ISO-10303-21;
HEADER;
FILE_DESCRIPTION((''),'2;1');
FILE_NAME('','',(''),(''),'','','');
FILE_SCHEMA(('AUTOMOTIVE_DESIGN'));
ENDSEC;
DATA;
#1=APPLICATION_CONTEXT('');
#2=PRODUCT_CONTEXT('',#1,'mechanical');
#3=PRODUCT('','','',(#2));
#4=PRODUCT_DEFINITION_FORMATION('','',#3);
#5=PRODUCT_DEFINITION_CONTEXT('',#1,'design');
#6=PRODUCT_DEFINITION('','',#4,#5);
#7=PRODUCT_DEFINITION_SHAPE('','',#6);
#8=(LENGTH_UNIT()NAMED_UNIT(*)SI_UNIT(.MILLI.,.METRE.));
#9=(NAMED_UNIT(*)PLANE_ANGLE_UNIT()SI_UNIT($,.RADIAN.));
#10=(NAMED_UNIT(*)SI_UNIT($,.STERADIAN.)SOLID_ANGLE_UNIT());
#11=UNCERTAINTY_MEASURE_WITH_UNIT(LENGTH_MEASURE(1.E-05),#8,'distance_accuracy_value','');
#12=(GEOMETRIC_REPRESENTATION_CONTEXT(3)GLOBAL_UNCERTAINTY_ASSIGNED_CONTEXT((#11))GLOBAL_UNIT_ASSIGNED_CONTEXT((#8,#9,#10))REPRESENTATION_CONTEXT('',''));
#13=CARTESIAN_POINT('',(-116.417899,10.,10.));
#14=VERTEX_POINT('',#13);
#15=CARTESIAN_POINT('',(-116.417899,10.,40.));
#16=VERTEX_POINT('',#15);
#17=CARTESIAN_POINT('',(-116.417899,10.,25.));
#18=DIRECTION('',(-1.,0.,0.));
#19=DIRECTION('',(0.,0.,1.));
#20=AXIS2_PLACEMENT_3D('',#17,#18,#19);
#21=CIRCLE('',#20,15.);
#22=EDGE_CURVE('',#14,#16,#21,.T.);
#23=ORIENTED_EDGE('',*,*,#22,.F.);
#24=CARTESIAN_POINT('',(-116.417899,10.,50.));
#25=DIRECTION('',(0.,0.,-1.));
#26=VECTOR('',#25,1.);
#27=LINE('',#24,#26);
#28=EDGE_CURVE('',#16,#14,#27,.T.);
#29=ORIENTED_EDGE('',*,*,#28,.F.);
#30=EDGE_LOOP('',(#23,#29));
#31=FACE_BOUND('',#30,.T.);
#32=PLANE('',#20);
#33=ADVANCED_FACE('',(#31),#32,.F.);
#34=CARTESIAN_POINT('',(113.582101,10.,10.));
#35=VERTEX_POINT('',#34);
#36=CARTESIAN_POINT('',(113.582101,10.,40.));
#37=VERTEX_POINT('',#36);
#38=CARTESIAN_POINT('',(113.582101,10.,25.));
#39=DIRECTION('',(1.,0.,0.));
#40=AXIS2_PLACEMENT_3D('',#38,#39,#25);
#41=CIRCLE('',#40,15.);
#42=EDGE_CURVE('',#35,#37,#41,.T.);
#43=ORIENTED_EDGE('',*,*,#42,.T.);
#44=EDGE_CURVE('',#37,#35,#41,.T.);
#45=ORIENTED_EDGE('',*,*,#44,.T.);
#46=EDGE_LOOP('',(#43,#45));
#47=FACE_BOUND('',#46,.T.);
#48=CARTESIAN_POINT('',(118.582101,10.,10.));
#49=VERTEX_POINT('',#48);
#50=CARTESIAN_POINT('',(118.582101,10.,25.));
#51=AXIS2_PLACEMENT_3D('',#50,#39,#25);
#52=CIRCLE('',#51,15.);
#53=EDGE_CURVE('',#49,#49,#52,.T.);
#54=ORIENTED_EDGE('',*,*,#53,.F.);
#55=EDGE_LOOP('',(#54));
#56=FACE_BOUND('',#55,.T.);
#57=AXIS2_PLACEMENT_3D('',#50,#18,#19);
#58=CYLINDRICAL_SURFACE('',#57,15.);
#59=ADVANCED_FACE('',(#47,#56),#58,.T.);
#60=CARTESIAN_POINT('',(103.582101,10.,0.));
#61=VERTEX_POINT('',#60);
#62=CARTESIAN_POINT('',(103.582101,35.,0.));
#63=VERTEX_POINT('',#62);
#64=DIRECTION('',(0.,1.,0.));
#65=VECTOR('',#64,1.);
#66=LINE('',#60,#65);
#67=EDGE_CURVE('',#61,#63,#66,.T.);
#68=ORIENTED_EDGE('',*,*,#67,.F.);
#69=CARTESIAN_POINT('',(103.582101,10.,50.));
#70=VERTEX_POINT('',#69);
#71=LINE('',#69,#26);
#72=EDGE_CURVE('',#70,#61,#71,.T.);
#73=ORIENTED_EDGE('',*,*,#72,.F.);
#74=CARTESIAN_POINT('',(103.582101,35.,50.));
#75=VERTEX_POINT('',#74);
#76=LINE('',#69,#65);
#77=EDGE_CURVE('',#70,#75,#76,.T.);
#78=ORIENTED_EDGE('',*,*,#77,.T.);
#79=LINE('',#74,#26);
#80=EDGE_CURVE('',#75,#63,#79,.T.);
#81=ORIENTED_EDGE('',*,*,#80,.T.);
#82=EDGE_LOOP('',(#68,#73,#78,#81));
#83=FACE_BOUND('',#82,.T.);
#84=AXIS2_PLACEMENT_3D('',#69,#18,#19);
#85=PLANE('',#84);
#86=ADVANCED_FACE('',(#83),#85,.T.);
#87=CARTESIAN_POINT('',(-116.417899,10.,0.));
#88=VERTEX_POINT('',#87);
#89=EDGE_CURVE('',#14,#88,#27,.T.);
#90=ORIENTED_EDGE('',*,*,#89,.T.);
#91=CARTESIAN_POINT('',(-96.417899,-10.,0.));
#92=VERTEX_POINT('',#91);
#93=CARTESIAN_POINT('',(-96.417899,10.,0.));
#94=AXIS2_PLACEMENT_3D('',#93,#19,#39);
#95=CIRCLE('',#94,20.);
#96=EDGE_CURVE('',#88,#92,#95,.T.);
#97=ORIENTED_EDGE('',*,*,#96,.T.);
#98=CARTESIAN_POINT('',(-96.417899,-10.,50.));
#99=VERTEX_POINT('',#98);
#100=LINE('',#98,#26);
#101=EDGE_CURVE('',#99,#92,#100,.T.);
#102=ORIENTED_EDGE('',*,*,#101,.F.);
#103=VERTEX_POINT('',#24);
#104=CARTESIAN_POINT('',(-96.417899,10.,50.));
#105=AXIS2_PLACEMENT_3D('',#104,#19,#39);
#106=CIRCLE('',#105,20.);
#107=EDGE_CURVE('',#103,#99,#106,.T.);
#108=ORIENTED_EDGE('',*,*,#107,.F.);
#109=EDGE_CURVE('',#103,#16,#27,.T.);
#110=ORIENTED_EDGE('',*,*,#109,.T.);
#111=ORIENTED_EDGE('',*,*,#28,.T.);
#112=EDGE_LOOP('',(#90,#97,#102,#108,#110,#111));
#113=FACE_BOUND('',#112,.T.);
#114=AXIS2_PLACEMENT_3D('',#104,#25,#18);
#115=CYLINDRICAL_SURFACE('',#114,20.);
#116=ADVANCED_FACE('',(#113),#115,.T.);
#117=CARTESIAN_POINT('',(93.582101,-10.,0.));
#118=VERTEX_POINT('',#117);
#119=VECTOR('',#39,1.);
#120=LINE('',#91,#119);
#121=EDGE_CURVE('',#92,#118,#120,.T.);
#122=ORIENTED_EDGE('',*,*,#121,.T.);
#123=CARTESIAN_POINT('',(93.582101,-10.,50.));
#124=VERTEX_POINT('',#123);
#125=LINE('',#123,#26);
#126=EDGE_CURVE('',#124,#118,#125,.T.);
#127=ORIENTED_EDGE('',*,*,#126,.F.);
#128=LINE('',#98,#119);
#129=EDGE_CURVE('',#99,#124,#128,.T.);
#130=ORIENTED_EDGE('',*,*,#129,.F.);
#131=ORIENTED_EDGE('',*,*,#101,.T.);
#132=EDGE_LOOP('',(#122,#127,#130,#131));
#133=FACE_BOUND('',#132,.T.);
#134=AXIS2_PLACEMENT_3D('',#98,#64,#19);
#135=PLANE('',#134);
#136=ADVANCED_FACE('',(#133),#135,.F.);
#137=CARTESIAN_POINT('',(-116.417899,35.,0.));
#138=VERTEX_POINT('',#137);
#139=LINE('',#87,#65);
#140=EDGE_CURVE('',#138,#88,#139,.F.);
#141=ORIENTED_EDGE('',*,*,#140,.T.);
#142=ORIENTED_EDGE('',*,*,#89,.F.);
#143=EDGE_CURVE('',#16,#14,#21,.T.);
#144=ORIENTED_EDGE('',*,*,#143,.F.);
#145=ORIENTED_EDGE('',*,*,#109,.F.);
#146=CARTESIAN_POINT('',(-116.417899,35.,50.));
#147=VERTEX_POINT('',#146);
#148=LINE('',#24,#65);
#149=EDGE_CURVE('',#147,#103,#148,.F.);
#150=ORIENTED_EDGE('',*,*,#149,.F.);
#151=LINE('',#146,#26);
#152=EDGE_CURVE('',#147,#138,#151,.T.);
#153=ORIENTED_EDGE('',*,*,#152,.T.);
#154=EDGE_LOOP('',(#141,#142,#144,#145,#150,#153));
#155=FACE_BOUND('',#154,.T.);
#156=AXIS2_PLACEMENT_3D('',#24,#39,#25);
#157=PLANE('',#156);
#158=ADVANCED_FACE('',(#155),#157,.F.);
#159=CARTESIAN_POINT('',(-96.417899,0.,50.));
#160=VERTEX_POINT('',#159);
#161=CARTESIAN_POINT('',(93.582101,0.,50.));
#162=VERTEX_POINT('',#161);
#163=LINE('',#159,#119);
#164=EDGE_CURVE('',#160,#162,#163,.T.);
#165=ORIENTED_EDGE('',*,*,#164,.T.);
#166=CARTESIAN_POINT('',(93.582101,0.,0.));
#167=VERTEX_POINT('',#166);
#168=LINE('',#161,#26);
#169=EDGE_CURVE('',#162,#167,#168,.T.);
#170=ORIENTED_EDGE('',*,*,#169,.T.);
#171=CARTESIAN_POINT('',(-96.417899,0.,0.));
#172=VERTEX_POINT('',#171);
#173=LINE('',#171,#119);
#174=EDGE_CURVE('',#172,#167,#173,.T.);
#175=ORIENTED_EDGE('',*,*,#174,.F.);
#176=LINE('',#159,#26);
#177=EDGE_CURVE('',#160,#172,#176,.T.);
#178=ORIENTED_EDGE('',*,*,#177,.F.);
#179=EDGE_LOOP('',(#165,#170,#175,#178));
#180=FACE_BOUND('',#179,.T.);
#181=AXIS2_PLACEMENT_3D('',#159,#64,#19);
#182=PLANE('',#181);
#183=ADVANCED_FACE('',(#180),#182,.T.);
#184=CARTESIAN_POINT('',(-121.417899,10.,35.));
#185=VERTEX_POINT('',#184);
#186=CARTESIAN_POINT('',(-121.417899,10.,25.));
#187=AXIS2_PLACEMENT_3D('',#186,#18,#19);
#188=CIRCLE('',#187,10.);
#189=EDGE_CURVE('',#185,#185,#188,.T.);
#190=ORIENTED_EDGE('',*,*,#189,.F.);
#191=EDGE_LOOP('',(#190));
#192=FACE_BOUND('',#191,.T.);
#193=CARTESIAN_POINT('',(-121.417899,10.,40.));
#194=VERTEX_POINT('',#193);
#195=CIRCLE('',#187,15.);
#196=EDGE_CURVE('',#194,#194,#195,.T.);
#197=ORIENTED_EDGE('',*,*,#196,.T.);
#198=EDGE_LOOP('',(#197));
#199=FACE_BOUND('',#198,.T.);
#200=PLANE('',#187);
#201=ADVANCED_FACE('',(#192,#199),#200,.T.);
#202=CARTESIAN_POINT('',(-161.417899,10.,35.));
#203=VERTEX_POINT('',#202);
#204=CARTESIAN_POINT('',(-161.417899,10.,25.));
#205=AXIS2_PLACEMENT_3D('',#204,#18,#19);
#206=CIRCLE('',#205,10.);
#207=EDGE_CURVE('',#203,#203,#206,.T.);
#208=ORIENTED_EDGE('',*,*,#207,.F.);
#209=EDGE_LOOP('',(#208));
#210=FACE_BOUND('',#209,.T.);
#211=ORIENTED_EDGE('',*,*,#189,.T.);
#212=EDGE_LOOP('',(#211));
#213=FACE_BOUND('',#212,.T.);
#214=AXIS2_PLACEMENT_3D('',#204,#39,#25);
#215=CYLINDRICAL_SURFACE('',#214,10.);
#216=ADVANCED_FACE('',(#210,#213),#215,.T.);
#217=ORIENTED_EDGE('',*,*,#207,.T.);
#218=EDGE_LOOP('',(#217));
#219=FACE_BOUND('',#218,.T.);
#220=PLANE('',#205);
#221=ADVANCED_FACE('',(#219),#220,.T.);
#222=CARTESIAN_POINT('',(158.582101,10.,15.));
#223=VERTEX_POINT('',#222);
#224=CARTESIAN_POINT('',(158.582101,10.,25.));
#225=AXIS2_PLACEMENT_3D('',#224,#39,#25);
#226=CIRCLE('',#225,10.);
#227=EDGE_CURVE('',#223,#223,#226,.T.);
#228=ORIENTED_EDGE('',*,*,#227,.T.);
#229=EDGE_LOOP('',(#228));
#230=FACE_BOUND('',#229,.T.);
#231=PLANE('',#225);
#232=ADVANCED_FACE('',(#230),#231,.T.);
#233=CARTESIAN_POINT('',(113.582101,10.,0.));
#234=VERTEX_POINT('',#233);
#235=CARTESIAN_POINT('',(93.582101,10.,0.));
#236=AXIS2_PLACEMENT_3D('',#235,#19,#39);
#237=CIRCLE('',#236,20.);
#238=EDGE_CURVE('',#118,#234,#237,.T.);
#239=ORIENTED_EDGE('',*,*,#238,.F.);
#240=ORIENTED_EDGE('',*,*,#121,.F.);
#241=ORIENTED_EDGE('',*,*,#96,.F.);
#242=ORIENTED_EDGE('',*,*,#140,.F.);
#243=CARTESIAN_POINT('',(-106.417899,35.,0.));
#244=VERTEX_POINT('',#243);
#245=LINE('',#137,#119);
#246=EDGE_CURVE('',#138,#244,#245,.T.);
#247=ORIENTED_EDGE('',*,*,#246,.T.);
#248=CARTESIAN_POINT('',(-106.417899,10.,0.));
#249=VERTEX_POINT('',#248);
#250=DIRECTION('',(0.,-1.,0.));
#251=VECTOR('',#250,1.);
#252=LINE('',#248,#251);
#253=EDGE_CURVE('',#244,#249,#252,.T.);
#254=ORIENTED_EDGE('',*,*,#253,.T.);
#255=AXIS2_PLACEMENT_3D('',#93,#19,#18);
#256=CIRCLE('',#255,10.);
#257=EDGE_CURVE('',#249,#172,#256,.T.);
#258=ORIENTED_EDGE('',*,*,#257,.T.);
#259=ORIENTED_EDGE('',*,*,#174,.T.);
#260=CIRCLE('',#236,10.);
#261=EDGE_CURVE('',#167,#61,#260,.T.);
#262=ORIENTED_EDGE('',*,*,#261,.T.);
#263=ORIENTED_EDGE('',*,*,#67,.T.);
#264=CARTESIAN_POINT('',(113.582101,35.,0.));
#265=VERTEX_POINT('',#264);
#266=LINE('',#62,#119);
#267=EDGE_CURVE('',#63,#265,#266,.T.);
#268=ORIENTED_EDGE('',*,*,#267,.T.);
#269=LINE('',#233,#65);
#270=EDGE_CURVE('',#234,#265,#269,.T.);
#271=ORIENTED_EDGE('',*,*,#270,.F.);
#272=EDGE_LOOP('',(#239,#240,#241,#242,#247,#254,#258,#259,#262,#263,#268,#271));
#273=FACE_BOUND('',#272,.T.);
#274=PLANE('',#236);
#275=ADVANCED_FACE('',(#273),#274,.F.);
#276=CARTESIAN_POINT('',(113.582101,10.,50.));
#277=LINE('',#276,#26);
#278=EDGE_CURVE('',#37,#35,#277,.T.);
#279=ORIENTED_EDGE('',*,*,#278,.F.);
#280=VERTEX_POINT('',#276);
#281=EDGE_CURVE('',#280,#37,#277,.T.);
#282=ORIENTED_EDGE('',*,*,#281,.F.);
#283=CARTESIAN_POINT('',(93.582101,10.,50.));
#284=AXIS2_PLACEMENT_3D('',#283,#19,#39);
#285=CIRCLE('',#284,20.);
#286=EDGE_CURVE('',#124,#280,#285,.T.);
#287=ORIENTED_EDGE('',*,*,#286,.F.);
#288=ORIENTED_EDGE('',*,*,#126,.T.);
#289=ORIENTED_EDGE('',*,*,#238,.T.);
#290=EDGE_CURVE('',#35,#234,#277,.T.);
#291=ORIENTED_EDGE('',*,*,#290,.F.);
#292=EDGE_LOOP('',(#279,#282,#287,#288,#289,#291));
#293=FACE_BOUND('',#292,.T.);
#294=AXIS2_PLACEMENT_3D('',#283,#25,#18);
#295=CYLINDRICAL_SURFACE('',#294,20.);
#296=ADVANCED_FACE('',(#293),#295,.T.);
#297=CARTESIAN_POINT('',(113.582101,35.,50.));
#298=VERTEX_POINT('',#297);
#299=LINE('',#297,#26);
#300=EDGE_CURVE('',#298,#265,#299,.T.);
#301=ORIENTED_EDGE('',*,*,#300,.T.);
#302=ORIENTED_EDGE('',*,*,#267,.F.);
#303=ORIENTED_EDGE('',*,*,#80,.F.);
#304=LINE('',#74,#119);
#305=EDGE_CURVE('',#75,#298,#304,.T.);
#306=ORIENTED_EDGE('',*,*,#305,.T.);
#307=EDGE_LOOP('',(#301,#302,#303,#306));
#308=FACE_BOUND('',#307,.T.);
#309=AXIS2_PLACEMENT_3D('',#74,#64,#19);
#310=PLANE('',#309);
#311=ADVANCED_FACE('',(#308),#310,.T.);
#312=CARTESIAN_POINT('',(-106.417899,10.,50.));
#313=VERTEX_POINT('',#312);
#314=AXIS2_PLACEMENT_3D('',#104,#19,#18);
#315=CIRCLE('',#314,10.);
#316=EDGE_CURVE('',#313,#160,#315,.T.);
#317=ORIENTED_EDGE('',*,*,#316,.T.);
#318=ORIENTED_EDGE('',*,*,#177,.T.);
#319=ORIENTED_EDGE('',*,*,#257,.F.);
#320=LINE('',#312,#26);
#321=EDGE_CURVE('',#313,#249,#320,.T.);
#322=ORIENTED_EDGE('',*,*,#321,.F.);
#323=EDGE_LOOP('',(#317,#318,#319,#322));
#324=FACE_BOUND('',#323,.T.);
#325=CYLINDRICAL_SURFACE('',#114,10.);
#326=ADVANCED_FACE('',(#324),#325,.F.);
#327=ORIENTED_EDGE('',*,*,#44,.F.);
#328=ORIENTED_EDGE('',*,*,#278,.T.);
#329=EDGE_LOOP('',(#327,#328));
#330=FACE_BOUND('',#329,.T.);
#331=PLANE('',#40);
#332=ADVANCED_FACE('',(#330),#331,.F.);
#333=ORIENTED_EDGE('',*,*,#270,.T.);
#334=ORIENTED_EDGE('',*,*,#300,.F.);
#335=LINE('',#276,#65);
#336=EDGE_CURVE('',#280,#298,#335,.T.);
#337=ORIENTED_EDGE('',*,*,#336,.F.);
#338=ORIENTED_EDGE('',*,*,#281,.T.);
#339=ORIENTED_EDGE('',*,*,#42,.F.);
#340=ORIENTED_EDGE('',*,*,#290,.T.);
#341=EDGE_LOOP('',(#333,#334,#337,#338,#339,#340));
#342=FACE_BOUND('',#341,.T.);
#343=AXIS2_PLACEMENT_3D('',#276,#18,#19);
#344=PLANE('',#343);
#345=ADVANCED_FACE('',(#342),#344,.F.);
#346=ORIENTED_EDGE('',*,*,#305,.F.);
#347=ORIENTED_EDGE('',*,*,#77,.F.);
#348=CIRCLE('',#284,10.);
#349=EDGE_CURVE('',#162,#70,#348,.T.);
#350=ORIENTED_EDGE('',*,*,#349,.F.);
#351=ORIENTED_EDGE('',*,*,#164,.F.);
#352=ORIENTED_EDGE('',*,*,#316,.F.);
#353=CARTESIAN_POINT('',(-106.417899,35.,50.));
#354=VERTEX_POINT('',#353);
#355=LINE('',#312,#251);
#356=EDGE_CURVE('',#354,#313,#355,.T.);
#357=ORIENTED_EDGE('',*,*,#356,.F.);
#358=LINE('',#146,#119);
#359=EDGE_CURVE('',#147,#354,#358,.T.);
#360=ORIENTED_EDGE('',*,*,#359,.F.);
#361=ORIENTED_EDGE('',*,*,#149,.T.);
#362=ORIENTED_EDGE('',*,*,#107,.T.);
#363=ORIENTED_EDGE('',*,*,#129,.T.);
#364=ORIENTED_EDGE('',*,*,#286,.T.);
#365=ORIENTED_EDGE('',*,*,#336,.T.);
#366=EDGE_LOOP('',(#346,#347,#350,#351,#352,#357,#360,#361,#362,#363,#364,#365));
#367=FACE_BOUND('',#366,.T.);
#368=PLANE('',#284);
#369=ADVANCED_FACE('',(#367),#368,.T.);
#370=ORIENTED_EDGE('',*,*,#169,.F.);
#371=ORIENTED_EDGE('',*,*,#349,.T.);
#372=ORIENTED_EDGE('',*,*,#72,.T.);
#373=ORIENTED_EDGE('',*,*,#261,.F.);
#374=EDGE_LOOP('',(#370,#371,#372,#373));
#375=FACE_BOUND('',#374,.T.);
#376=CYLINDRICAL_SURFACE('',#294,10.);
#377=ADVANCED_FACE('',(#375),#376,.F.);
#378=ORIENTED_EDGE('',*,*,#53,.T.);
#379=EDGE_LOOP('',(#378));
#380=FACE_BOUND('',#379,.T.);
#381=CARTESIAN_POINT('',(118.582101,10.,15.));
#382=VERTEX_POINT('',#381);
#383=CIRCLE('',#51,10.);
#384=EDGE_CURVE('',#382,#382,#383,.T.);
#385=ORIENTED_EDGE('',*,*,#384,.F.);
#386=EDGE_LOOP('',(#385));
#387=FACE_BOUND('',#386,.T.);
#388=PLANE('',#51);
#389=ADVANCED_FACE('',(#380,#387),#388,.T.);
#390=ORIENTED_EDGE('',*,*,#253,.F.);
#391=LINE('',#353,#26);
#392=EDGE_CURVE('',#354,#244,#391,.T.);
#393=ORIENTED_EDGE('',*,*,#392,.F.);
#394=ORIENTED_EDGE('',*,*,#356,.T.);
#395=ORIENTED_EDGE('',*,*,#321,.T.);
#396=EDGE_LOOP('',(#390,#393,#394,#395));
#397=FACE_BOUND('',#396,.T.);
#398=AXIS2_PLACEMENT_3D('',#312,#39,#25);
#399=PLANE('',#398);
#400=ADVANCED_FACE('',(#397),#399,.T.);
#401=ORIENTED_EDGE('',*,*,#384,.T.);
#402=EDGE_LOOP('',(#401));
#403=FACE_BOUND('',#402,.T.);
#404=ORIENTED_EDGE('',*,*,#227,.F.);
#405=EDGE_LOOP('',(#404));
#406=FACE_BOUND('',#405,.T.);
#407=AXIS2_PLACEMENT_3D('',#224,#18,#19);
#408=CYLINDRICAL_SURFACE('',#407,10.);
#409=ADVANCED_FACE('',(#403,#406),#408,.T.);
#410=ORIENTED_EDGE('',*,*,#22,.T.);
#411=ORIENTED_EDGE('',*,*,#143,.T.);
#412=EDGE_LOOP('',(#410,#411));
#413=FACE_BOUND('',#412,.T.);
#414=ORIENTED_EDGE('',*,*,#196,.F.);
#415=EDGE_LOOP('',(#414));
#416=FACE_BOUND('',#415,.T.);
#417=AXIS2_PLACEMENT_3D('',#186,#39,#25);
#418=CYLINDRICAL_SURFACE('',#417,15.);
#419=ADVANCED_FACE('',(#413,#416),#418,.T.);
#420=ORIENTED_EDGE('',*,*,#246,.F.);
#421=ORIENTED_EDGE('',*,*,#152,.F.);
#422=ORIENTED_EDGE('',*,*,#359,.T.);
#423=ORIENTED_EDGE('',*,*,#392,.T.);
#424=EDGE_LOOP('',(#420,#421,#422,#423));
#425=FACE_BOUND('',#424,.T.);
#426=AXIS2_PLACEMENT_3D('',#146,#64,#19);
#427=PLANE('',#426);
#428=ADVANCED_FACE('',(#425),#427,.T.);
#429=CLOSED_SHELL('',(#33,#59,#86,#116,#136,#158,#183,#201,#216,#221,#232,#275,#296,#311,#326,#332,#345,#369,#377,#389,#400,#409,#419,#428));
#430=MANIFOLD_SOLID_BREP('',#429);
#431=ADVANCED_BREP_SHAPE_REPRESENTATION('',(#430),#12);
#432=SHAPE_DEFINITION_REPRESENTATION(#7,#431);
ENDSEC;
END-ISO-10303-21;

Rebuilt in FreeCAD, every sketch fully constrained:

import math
import FreeCAD as App
import Part
import Sketcher
from FreeCAD import Vector
Q = App.Units.Quantity

doc = App.newDocument("Part")
body = doc.addObject("PartDesign::Body", "Body")

sketch1 = doc.addObject("Sketcher::SketchObject", "Sketch")
body.addObject(sketch1)
sketch1.AttachmentSupport = (doc.XY_Plane, [""])
sketch1.MapMode = "FlatFace"
sketch1.addGeometry(Part.LineSegment(Vector(-106, 10, 0), Vector(-106, 35, 0)), False)
sketch1.addGeometry(Part.LineSegment(Vector(-106, 35, 0), Vector(-116, 35, 0)), False)
sketch1.addGeometry(Part.LineSegment(Vector(-116, 35, 0), Vector(-116, 10, 0)), False)
sketch1.addGeometry(Part.ArcOfCircle(Part.Circle(Vector(-96, 10, 0), Vector(0, 0, 1), 20), math.radians(180), math.radians(270)), False)
sketch1.addGeometry(Part.LineSegment(Vector(-96, -10, 0), Vector(94, -10, 0)), False)
sketch1.addGeometry(Part.ArcOfCircle(Part.Circle(Vector(94, 10, 0), Vector(0, 0, 1), 20), math.radians(-90), math.radians(0)), False)
sketch1.addGeometry(Part.LineSegment(Vector(114, 10, 0), Vector(114, 35, 0)), False)
sketch1.addGeometry(Part.LineSegment(Vector(114, 35, 0), Vector(104, 35, 0)), False)
sketch1.addGeometry(Part.LineSegment(Vector(104, 35, 0), Vector(104, 10, 0)), False)
sketch1.addGeometry(Part.ArcOfCircle(Part.Circle(Vector(94, 10, 0), Vector(0, 0, 1), 10), math.radians(-90), math.radians(0)), False)
sketch1.addGeometry(Part.LineSegment(Vector(94, 0, 0), Vector(-96, 0, 0)), False)
sketch1.addGeometry(Part.ArcOfCircle(Part.Circle(Vector(-96, 10, 0), Vector(0, 0, 1), 10), math.radians(180), math.radians(270)), False)
sketch1.addConstraint(Sketcher.Constraint("Coincident", 0, 2, 1, 1))
sketch1.addConstraint(Sketcher.Constraint("Coincident", 1, 2, 2, 1))
sketch1.addConstraint(Sketcher.Constraint("Tangent", 2, 2, 3, 1))
sketch1.addConstraint(Sketcher.Constraint("Tangent", 3, 2, 4, 1))
sketch1.addConstraint(Sketcher.Constraint("Tangent", 4, 2, 5, 1))
sketch1.addConstraint(Sketcher.Constraint("Tangent", 5, 2, 6, 1))
sketch1.addConstraint(Sketcher.Constraint("Coincident", 6, 2, 7, 1))
sketch1.addConstraint(Sketcher.Constraint("Coincident", 7, 2, 8, 1))
sketch1.addConstraint(Sketcher.Constraint("Tangent", 8, 2, 9, 2))
sketch1.addConstraint(Sketcher.Constraint("Tangent", 9, 1, 10, 1))
sketch1.addConstraint(Sketcher.Constraint("Tangent", 10, 2, 11, 2))
sketch1.addConstraint(Sketcher.Constraint("Tangent", 11, 1, 0, 1))
sketch1.addConstraint(Sketcher.Constraint("Vertical", 0))
sketch1.addConstraint(Sketcher.Constraint("Horizontal", 1))
sketch1.addConstraint(Sketcher.Constraint("Vertical", 2))
sketch1.addConstraint(Sketcher.Constraint("Horizontal", 4))
sketch1.addConstraint(Sketcher.Constraint("Vertical", 6))
sketch1.addConstraint(Sketcher.Constraint("Horizontal", 7))
sketch1.addConstraint(Sketcher.Constraint("Vertical", 8))
sketch1.addConstraint(Sketcher.Constraint("Horizontal", 10))
sketch1.addConstraint(Sketcher.Constraint("Coincident", 9, 3, 5, 3))
sketch1.addConstraint(Sketcher.Constraint("Coincident", 11, 3, 3, 3))
sketch1.addConstraint(Sketcher.Constraint("Equal", 3, 5))
sketch1.addConstraint(Sketcher.Constraint("PointOnObject", 9, 1, -1))
sketch1.addConstraint(Sketcher.Constraint("Horizontal", 1, 2, 6, 2))
sketch1.addConstraint(Sketcher.Constraint("Radius", 3, Q("20 mm")))
sketch1.addConstraint(Sketcher.Constraint("Radius", 9, Q("10 mm")))
sketch1.addConstraint(Sketcher.Constraint("DistanceX", 4, 1, 4, 2, Q("190 mm")))
sketch1.addConstraint(Sketcher.Constraint("DistanceY", 0, 1, 0, 2, Q("25 mm")))
sketch1.addConstraint(Sketcher.Constraint("DistanceX", 3, 3, -1, 1, Q("96.417899 mm")))
pad1 = doc.addObject("PartDesign::Pad", "Pad")
body.addObject(pad1)
pad1.Profile = sketch1
pad1.Length = 50

sketch2 = doc.addObject("Sketcher::SketchObject", "Sketch001")
body.addObject(sketch2)
sketch2.AttachmentSupport = (doc.YZ_Plane, [""])
sketch2.MapMode = "FlatFace"
sketch2.AttachmentOffset = App.Placement(Vector(0, 0, 113.582101), App.Rotation())
sketch2.addGeometry(Part.Circle(Vector(10, 25, 0), Vector(0, 0, 1), 10), False)
sketch2.addConstraint(Sketcher.Constraint("Diameter", 0, Q("20 mm")))
sketch2.addConstraint(Sketcher.Constraint("DistanceX", -1, 1, 0, 3, Q("10 mm")))
sketch2.addConstraint(Sketcher.Constraint("DistanceY", -1, 1, 0, 3, Q("25 mm")))
pad2 = doc.addObject("PartDesign::Pad", "Pad001")
body.addObject(pad2)
pad2.Profile = sketch2
pad2.Length = 45

sketch3 = doc.addObject("Sketcher::SketchObject", "Sketch002")
body.addObject(sketch3)
sketch3.AttachmentSupport = (doc.YZ_Plane, [""])
sketch3.MapMode = "FlatFace"
sketch3.AttachmentOffset = App.Placement(Vector(0, 0, -116.417899), App.Rotation())
sketch3.addGeometry(Part.Circle(Vector(10, 25, 0), Vector(0, 0, 1), 10), False)
sketch3.addConstraint(Sketcher.Constraint("Diameter", 0, Q("20 mm")))
sketch3.addConstraint(Sketcher.Constraint("DistanceX", -1, 1, 0, 3, Q("10 mm")))
sketch3.addConstraint(Sketcher.Constraint("DistanceY", -1, 1, 0, 3, Q("25 mm")))
pad3 = doc.addObject("PartDesign::Pad", "Pad002")
body.addObject(pad3)
pad3.Profile = sketch3
pad3.Length = 45
pad3.Reversed = True

sketch4 = doc.addObject("Sketcher::SketchObject", "Sketch003")
body.addObject(sketch4)
sketch4.AttachmentSupport = (doc.YZ_Plane, [""])
sketch4.MapMode = "FlatFace"
sketch4.AttachmentOffset = App.Placement(Vector(0, 0, -116.417899), App.Rotation())
sketch4.addGeometry(Part.Circle(Vector(10, 25, 0), Vector(0, 0, 1), 15), False)
sketch4.addConstraint(Sketcher.Constraint("Diameter", 0, Q("30 mm")))
sketch4.addConstraint(Sketcher.Constraint("DistanceX", -1, 1, 0, 3, Q("10 mm")))
sketch4.addConstraint(Sketcher.Constraint("DistanceY", -1, 1, 0, 3, Q("25 mm")))
pad4 = doc.addObject("PartDesign::Pad", "Pad003")
body.addObject(pad4)
pad4.Profile = sketch4
pad4.Length = 5
pad4.Reversed = True

sketch5 = doc.addObject("Sketcher::SketchObject", "Sketch004")
body.addObject(sketch5)
sketch5.AttachmentSupport = (doc.YZ_Plane, [""])
sketch5.MapMode = "FlatFace"
sketch5.AttachmentOffset = App.Placement(Vector(0, 0, 113.582101), App.Rotation())
sketch5.addGeometry(Part.Circle(Vector(10, 25, 0), Vector(0, 0, 1), 15), False)
sketch5.addConstraint(Sketcher.Constraint("Diameter", 0, Q("30 mm")))
sketch5.addConstraint(Sketcher.Constraint("DistanceX", -1, 1, 0, 3, Q("10 mm")))
sketch5.addConstraint(Sketcher.Constraint("DistanceY", -1, 1, 0, 3, Q("25 mm")))
pad5 = doc.addObject("PartDesign::Pad", "Pad004")
body.addObject(pad5)
pad5.Profile = sketch5
pad5.Length = 5

doc.recompute()
